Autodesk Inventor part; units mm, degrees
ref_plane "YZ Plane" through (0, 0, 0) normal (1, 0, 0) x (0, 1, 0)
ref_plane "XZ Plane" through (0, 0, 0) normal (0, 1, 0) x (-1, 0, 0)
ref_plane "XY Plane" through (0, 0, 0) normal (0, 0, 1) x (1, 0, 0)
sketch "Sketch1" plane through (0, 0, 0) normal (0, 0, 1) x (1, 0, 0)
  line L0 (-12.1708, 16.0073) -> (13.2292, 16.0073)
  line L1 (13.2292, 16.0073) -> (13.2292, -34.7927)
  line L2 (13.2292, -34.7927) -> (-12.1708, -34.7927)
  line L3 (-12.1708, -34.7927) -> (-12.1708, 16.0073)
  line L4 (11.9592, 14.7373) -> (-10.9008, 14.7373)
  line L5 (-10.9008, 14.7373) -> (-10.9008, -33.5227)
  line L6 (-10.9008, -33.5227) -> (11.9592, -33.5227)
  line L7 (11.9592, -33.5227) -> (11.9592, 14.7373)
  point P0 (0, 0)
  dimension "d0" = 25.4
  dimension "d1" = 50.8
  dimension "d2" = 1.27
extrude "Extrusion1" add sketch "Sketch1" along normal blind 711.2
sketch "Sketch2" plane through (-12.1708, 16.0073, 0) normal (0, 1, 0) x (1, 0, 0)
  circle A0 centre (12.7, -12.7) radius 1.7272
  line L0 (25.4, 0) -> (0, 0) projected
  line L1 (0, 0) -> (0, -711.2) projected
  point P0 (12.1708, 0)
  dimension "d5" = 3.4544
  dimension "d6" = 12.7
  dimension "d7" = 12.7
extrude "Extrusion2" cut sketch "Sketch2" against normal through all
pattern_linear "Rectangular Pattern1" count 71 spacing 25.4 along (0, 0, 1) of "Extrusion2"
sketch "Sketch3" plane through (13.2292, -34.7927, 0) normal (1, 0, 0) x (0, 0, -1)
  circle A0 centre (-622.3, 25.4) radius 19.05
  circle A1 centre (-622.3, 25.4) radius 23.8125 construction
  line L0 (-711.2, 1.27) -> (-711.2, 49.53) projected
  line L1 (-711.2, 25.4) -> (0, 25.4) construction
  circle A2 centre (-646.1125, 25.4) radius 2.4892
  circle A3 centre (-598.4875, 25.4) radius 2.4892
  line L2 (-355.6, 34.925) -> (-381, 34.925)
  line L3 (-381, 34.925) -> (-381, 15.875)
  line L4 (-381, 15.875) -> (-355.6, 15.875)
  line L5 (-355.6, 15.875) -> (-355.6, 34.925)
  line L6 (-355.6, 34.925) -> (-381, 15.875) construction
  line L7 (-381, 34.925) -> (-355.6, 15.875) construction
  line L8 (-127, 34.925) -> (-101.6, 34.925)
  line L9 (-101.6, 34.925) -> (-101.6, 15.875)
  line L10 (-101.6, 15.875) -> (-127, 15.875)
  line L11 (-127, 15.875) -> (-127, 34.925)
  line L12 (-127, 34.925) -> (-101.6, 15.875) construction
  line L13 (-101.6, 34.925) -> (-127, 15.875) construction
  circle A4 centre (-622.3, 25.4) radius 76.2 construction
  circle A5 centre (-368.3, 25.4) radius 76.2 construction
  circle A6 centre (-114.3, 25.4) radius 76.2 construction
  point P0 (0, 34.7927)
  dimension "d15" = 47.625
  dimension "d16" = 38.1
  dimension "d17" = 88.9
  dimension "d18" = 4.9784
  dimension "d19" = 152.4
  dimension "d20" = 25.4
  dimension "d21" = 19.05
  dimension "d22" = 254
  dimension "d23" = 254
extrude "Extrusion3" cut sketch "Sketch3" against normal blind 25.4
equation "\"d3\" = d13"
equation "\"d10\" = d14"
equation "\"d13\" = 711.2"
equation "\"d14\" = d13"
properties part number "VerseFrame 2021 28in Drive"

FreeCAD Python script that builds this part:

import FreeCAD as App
import Part
import Sketcher

V = App.Vector
Q = App.Units.Quantity

doc = App.newDocument("Part")
body = doc.addObject("PartDesign::Body", "Body")

sketch1 = body.newObject("Sketcher::SketchObject", "Sketch")
sketch1.AttachmentSupport = (doc.getObject("XY_Plane"), [""])
sketch1.MapMode = "FlatFace"
sketch1.addGeometry(Part.LineSegment(V(13, 16, 0), V(-12, 16, 0)), False)
sketch1.addGeometry(Part.LineSegment(V(-12, 16, 0), V(-12, -35, 0)), False)
sketch1.addGeometry(Part.LineSegment(V(-12, -35, 0), V(13, -35, 0)), False)
sketch1.addGeometry(Part.LineSegment(V(13, -35, 0), V(13, 16, 0)), False)
sketch1.addGeometry(Part.LineSegment(V(-11, 15, 0), V(12, 15, 0)), False)
sketch1.addGeometry(Part.LineSegment(V(12, 15, 0), V(12, -34, 0)), False)
sketch1.addGeometry(Part.LineSegment(V(12, -34, 0), V(-11, -34, 0)), False)
sketch1.addGeometry(Part.LineSegment(V(-11, -34, 0), V(-11, 15, 0)), False)
sketch1.addConstraint(Sketcher.Constraint("Coincident", 0, 2, 1, 1))
sketch1.addConstraint(Sketcher.Constraint("Coincident", 1, 2, 2, 1))
sketch1.addConstraint(Sketcher.Constraint("Coincident", 2, 2, 3, 1))
sketch1.addConstraint(Sketcher.Constraint("Coincident", 3, 2, 0, 1))
sketch1.addConstraint(Sketcher.Constraint("Coincident", 4, 2, 5, 1))
sketch1.addConstraint(Sketcher.Constraint("Coincident", 5, 2, 6, 1))
sketch1.addConstraint(Sketcher.Constraint("Coincident", 6, 2, 7, 1))
sketch1.addConstraint(Sketcher.Constraint("Coincident", 7, 2, 4, 1))
sketch1.addConstraint(Sketcher.Constraint("Horizontal", 0))
sketch1.addConstraint(Sketcher.Constraint("Vertical", 1))
sketch1.addConstraint(Sketcher.Constraint("Horizontal", 2))
sketch1.addConstraint(Sketcher.Constraint("Vertical", 3))
sketch1.addConstraint(Sketcher.Constraint("Horizontal", 4))
sketch1.addConstraint(Sketcher.Constraint("Vertical", 5))
sketch1.addConstraint(Sketcher.Constraint("Horizontal", 6))
sketch1.addConstraint(Sketcher.Constraint("Vertical", 7))
sketch1.addConstraint(Sketcher.Constraint("DistanceX", 0, 2, 0, 1, Q("1 in")))
sketch1.addConstraint(Sketcher.Constraint("DistanceY", 1, 2, 1, 1, Q("2 in")))
sketch1.addConstraint(Sketcher.Constraint("DistanceX", 4, 2, 3, 2, Q("0.05 in")))
sketch1.addConstraint(Sketcher.Constraint("DistanceY", 4, 2, 3, 2, Q("0.05 in")))
sketch1.addConstraint(Sketcher.Constraint("DistanceY", 2, 2, 5, 2, Q("0.05 in")))
sketch1.addConstraint(Sketcher.Constraint("DistanceX", 1, 2, 6, 2, Q("0.05 in")))
sketch1.addConstraint(Sketcher.Constraint("DistanceY", -1, 1, 0, 2, Q("0.6302 in")))
sketch1.addConstraint(Sketcher.Constraint("DistanceX", 0, 2, -1, 1, 12.1708))
pad1 = body.newObject("PartDesign::Pad", "Pad")
pad1.Profile = sketch1
pad1.Length = Q("28 in")

sketch2 = body.newObject("Sketcher::SketchObject", "Sketch001")
sketch2.AttachmentSupport = (doc.getObject("XZ_Plane"), [""])
sketch2.MapMode = "FlatFace"
sketch2.AttachmentOffset = App.Placement(V(0, 0, -0.6302087 * 25.4), App.Rotation())
sketch2.addGeometry(Part.Circle(V(0.5, 12.7, 0), V(0, 0, 1), 1.7), False)
sketch2.addConstraint(Sketcher.Constraint("Diameter", 0, Q("0.136 in")))
sketch2.addConstraint(Sketcher.Constraint("DistanceY", -1, 1, 0, 3, Q("0.5 in")))
sketch2.addConstraint(Sketcher.Constraint("DistanceX", -1, 1, 0, 3, 0.5292))
pocket1 = body.newObject("PartDesign::Pocket", "Pocket")
pocket1.Profile = sketch2
pocket1.Type = "ThroughAll"
pocket1.Reversed = True
doc.recompute()

linearpattern = body.newObject("PartDesign::LinearPattern", "LinearPattern")
linearpattern.Originals = [pocket1]
linearpattern.Direction = (doc.getObject("Z_Axis"), [""])
linearpattern.Mode = "offset"
linearpattern.Offset = Q("1 in")
linearpattern.Occurrences = 71
body.Tip = linearpattern

sketch3 = body.newObject("Sketcher::SketchObject", "Sketch002")
sketch3.AttachmentSupport = (doc.getObject("YZ_Plane"), [""])
sketch3.MapMode = "FlatFace"
sketch3.AttachmentOffset = App.Placement(V(0, 0, 13.2292), App.Rotation())
sketch3.addGeometry(Part.Circle(V(-9.4, 622.3, 0), V(0, 0, 1), 19.1), False)
sketch3.addGeometry(Part.Circle(V(-9.4, 646.1, 0), V(0, 0, 1), 2.5), False)
sketch3.addGeometry(Part.Circle(V(-9.4, 598.5, 0), V(0, 0, 1), 2.5), False)
sketch3.addGeometry(Part.LineSegment(V(-18.9, 355.6, 0), V(0.1, 355.6, 0)), False)
sketch3.addGeometry(Part.LineSegment(V(0.1, 355.6, 0), V(0.1, 381, 0)), False)
sketch3.addGeometry(Part.LineSegment(V(0.1, 381, 0), V(-18.9, 381, 0)), False)
sketch3.addGeometry(Part.LineSegment(V(-18.9, 381, 0), V(-18.9, 355.6, 0)), False)
sketch3.addGeometry(Part.LineSegment(V(0.1, 101.6, 0), V(0.1, 127, 0)), False)
sketch3.addGeometry(Part.LineSegment(V(0.1, 127, 0), V(-18.9, 127, 0)), False)
sketch3.addGeometry(Part.LineSegment(V(-18.9, 127, 0), V(-18.9, 101.6, 0)), False)
sketch3.addGeometry(Part.LineSegment(V(-18.9, 101.6, 0), V(0.1, 101.6, 0)), False)
sketch3.addConstraint(Sketcher.Constraint("Coincident", 3, 2, 4, 1))
sketch3.addConstraint(Sketcher.Constraint("Coincident", 4, 2, 5, 1))
sketch3.addConstraint(Sketcher.Constraint("Coincident", 5, 2, 6, 1))
sketch3.addConstraint(Sketcher.Constraint("Coincident", 6, 2, 3, 1))
sketch3.addConstraint(Sketcher.Constraint("Coincident", 7, 2, 8, 1))
sketch3.addConstraint(Sketcher.Constraint("Coincident", 8, 2, 9, 1))
sketch3.addConstraint(Sketcher.Constraint("Coincident", 9, 2, 10, 1))
sketch3.addConstraint(Sketcher.Constraint("Coincident", 10, 2, 7, 1))
sketch3.addConstraint(Sketcher.Constraint("Horizontal", 3))
sketch3.addConstraint(Sketcher.Constraint("Vertical", 4))
sketch3.addConstraint(Sketcher.Constraint("Horizontal", 5))
sketch3.addConstraint(Sketcher.Constraint("Vertical", 6))
sketch3.addConstraint(Sketcher.Constraint("Vertical", 7))
sketch3.addConstraint(Sketcher.Constraint("Horizontal", 8))
sketch3.addConstraint(Sketcher.Constraint("Vertical", 9))
sketch3.addConstraint(Sketcher.Constraint("Horizontal", 10))
sketch3.addConstraint(Sketcher.Constraint("Equal", 1, 2))
sketch3.addConstraint(Sketcher.Constraint("Vertical", 0, 3, 1, 3))
sketch3.addConstraint(Sketcher.Constraint("Vertical", 1, 3, 2, 3))
sketch3.addConstraint(Sketcher.Constraint("Vertical", 4, 2, 7, 2))
sketch3.addConstraint(Sketcher.Constraint("Vertical", 6, 2, 8, 2))
sketch3.addConstraint(Sketcher.Constraint("Equal", 6, 7))
sketch3.addConstraint(Sketcher.Constraint("Diameter", 0, Q("1.5 in")))
sketch3.addConstraint(Sketcher.Constraint("DistanceY", 4, 1, 4, 2, Q("1 in")))
sketch3.addConstraint(Sketcher.Constraint("Diameter", 1, Q("0.196 in")))
sketch3.addConstraint(Sketcher.Constraint("DistanceY", 7, 2, 4, 2, Q("10 in")))
sketch3.addConstraint(Sketcher.Constraint("DistanceX", 3, 1, 3, 2, Q("0.75 in")))
sketch3.addConstraint(Sketcher.Constraint("DistanceY", -1, 1, 3, 2, Q("14 in")))
sketch3.addConstraint(Sketcher.Constraint("DistanceY", 2, 3, 1, 3, Q("1.875 in")))
sketch3.addConstraint(Sketcher.Constraint("DistanceY", -1, 1, 0, 3, Q("24.5 in")))
sketch3.addConstraint(Sketcher.Constraint("DistanceY", -1, 1, 1, 3, Q("25.4375 in")))
sketch3.addConstraint(Sketcher.Constraint("DistanceX", 2, 3, 3, 2, Q("0.375 in")))
sketch3.addConstraint(Sketcher.Constraint("DistanceX", 0, 3, -1, 1, Q("0.3698 in")))
pocket2 = body.newObject("PartDesign::Pocket", "Pocket001")
pocket2.Profile = sketch3
pocket2.Length = Q("1 in")

doc.recompute()
